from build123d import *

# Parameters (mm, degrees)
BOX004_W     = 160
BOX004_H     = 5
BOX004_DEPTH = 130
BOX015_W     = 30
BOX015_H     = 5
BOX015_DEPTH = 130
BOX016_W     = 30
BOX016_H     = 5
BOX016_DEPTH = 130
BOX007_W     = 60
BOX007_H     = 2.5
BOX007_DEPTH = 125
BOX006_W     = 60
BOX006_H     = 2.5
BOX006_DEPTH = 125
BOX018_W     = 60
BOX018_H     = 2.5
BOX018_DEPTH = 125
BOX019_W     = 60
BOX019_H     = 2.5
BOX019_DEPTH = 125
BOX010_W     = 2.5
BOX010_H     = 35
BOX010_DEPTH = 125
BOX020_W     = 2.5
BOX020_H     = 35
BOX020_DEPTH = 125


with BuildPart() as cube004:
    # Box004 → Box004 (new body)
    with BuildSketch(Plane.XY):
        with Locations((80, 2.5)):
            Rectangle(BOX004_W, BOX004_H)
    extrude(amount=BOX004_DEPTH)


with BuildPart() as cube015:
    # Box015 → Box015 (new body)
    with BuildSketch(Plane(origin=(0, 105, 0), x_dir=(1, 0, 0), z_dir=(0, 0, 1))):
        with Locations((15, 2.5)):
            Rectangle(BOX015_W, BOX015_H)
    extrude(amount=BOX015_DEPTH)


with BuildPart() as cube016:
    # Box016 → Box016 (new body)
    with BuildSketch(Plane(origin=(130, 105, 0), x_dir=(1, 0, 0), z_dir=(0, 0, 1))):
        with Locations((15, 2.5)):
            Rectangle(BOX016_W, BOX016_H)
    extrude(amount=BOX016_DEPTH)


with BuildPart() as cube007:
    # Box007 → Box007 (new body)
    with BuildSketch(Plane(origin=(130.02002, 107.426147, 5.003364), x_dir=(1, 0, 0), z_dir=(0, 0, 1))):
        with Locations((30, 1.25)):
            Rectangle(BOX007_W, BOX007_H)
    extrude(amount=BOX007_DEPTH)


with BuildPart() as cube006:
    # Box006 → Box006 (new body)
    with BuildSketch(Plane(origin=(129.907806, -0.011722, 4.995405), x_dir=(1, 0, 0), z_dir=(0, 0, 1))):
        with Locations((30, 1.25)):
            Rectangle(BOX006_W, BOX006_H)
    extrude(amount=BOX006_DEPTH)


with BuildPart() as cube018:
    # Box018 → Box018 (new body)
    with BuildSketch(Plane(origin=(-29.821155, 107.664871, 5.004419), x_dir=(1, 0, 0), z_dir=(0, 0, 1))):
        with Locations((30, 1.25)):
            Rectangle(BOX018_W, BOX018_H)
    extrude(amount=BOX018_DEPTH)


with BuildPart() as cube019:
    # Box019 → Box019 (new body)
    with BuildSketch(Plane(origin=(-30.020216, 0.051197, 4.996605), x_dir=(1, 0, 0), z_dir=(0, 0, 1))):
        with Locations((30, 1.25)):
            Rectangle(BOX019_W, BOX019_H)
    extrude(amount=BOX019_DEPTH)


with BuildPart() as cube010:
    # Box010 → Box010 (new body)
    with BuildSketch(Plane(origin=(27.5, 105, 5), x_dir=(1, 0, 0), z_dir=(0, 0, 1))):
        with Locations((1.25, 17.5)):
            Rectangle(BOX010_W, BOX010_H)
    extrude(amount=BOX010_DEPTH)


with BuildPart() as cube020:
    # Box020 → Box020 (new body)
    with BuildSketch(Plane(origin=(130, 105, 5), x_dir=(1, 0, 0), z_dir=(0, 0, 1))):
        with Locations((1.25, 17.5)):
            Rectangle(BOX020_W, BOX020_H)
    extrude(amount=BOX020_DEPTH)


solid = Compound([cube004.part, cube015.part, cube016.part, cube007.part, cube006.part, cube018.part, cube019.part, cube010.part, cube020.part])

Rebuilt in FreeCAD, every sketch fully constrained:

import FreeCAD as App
import Part
import Sketcher

V = App.Vector


def add_polygon(sketch, points):
    """Adds a closed chain of lines whose ends are joined by coincident constraints."""
    first, n = sketch.GeometryCount, len(points)
    for a, b in zip(points, points[1:] + points[:1]):
        sketch.addGeometry(Part.LineSegment(App.Vector(*a, 0), App.Vector(*b, 0)), False)
    for i in range(n):
        sketch.addConstraint(Sketcher.Constraint("Coincident", first + i, 2, first + (i + 1) % n, 1))

doc = App.newDocument("Part")
body = doc.addObject("PartDesign::Body", "Body")

sketch1 = body.newObject("Sketcher::SketchObject", "Sketch")
sketch1.AttachmentSupport = (doc.getObject("XY_Plane"), [""])
sketch1.MapMode = "FlatFace"
add_polygon(sketch1, [(0, 5), (0, 0), (160, 0), (160, 5)])
sketch1.addConstraint(Sketcher.Constraint("Vertical", 0))
sketch1.addConstraint(Sketcher.Constraint("Horizontal", 1))
sketch1.addConstraint(Sketcher.Constraint("Vertical", 2))
sketch1.addConstraint(Sketcher.Constraint("Horizontal", 3))
sketch1.addConstraint(Sketcher.Constraint("Coincident", 0, 2, -1, 1))
sketch1.addConstraint(Sketcher.Constraint("DistanceX", 1, 1, 1, 2, 160.0))
sketch1.addConstraint(Sketcher.Constraint("DistanceY", 0, 2, 0, 1, 5.0))
pad1 = body.newObject("PartDesign::Pad", "Pad")
pad1.Profile = sketch1
pad1.Length = 130
body2 = doc.addObject("PartDesign::Body", "Body001")

sketch2 = body2.newObject("Sketcher::SketchObject", "Sketch001")
sketch2.AttachmentSupport = (doc.getObject("XY_Plane001"), [""])
sketch2.MapMode = "FlatFace"
add_polygon(sketch2, [(0, 110), (0, 105), (30, 105), (30, 110)])
sketch2.addConstraint(Sketcher.Constraint("Vertical", 0))
sketch2.addConstraint(Sketcher.Constraint("Horizontal", 1))
sketch2.addConstraint(Sketcher.Constraint("Vertical", 2))
sketch2.addConstraint(Sketcher.Constraint("Horizontal", 3))
sketch2.addConstraint(Sketcher.Constraint("PointOnObject", 0, 2, -2))
sketch2.addConstraint(Sketcher.Constraint("DistanceX", 1, 1, 1, 2, 30.0))
sketch2.addConstraint(Sketcher.Constraint("DistanceY", 0, 2, 0, 1, 5.0))
sketch2.addConstraint(Sketcher.Constraint("DistanceY", -1, 1, 0, 2, 105.0))
pad2 = body2.newObject("PartDesign::Pad", "Pad001")
pad2.Profile = sketch2
pad2.Length = 130
body3 = doc.addObject("PartDesign::Body", "Body002")

sketch3 = body3.newObject("Sketcher::SketchObject", "Sketch002")
sketch3.AttachmentSupport = (doc.getObject("XY_Plane002"), [""])
sketch3.MapMode = "FlatFace"
add_polygon(sketch3, [(130, 110), (130, 105), (160, 105), (160, 110)])
sketch3.addConstraint(Sketcher.Constraint("Vertical", 0))
sketch3.addConstraint(Sketcher.Constraint("Horizontal", 1))
sketch3.addConstraint(Sketcher.Constraint("Vertical", 2))
sketch3.addConstraint(Sketcher.Constraint("Horizontal", 3))
sketch3.addConstraint(Sketcher.Constraint("DistanceX", 1, 1, 1, 2, 30.0))
sketch3.addConstraint(Sketcher.Constraint("DistanceY", 0, 2, 0, 1, 5.0))
sketch3.addConstraint(Sketcher.Constraint("DistanceX", -1, 1, 0, 2, 130.0))
sketch3.addConstraint(Sketcher.Constraint("DistanceY", -1, 1, 0, 2, 105.0))
pad3 = body3.newObject("PartDesign::Pad", "Pad002")
pad3.Profile = sketch3
pad3.Length = 130
body4 = doc.addObject("PartDesign::Body", "Body003")

sketch4 = body4.newObject("Sketcher::SketchObject", "Sketch003")
sketch4.AttachmentSupport = (doc.getObject("XY_Plane003"), [""])
sketch4.MapMode = "FlatFace"
sketch4.AttachmentOffset = App.Placement(V(0, 0, 5.003364), App.Rotation())
add_polygon(sketch4, [(130, 109.9), (130, 107.4), (190, 107.4), (190, 109.9)])
sketch4.addConstraint(Sketcher.Constraint("Vertical", 0))
sketch4.addConstraint(Sketcher.Constraint("Horizontal", 1))
sketch4.addConstraint(Sketcher.Constraint("Vertical", 2))
sketch4.addConstraint(Sketcher.Constraint("Horizontal", 3))
sketch4.addConstraint(Sketcher.Constraint("DistanceX", 1, 1, 1, 2, 60.0))
sketch4.addConstraint(Sketcher.Constraint("DistanceY", 0, 2, 0, 1, 2.5))
sketch4.addConstraint(Sketcher.Constraint("DistanceX", -1, 1, 0, 2, 130.02002))
sketch4.addConstraint(Sketcher.Constraint("DistanceY", -1, 1, 0, 2, 107.426147))
pad4 = body4.newObject("PartDesign::Pad", "Pad003")
pad4.Profile = sketch4
pad4.Length = 125
body5 = doc.addObject("PartDesign::Body", "Body004")

sketch5 = body5.newObject("Sketcher::SketchObject", "Sketch004")
sketch5.AttachmentSupport = (doc.getObject("XY_Plane004"), [""])
sketch5.MapMode = "FlatFace"
sketch5.AttachmentOffset = App.Placement(V(0, 0, 4.995405), App.Rotation())
add_polygon(sketch5, [(129.9, 2.5), (129.9, 0), (189.9, 0), (189.9, 2.5)])
sketch5.addConstraint(Sketcher.Constraint("Vertical", 0))
sketch5.addConstraint(Sketcher.Constraint("Horizontal", 1))
sketch5.addConstraint(Sketcher.Constraint("Vertical", 2))
sketch5.addConstraint(Sketcher.Constraint("Horizontal", 3))
sketch5.addConstraint(Sketcher.Constraint("DistanceX", 1, 1, 1, 2, 60.0))
sketch5.addConstraint(Sketcher.Constraint("DistanceY", 0, 2, 0, 1, 2.5))
sketch5.addConstraint(Sketcher.Constraint("DistanceY", -1, 1, 2, 2, 2.488278))
sketch5.addConstraint(Sketcher.Constraint("DistanceX", -1, 1, 0, 2, 129.907806))
pad5 = body5.newObject("PartDesign::Pad", "Pad004")
pad5.Profile = sketch5
pad5.Length = 125
body6 = doc.addObject("PartDesign::Body", "Body005")

sketch6 = body6.newObject("Sketcher::SketchObject", "Sketch005")
sketch6.AttachmentSupport = (doc.getObject("XY_Plane005"), [""])
sketch6.MapMode = "FlatFace"
sketch6.AttachmentOffset = App.Placement(V(0, 0, 5.004419), App.Rotation())
add_polygon(sketch6, [(-29.8, 110.2), (-29.8, 107.7), (30.2, 107.7), (30.2, 110.2)])
sketch6.addConstraint(Sketcher.Constraint("Vertical", 0))
sketch6.addConstraint(Sketcher.Constraint("Horizontal", 1))
sketch6.addConstraint(Sketcher.Constraint("Vertical", 2))
sketch6.addConstraint(Sketcher.Constraint("Horizontal", 3))
sketch6.addConstraint(Sketcher.Constraint("DistanceX", 1, 1, 1, 2, 60.0))
sketch6.addConstraint(Sketcher.Constraint("DistanceY", 0, 2, 0, 1, 2.5))
sketch6.addConstraint(Sketcher.Constraint("DistanceY", -1, 1, 0, 2, 107.664871))
sketch6.addConstraint(Sketcher.Constraint("DistanceX", 0, 2, -1, 1, 29.821155))
pad6 = body6.newObject("PartDesign::Pad", "Pad005")
pad6.Profile = sketch6
pad6.Length = 125
body7 = doc.addObject("PartDesign::Body", "Body006")

sketch7 = body7.newObject("Sketcher::SketchObject", "Sketch006")
sketch7.AttachmentSupport = (doc.getObject("XY_Plane006"), [""])
sketch7.MapMode = "FlatFace"
sketch7.AttachmentOffset = App.Placement(V(0, 0, 4.996605), App.Rotation())
add_polygon(sketch7, [(-30, 2.6), (-30, 0.1), (30, 0.1), (30, 2.6)])
sketch7.addConstraint(Sketcher.Constraint("Vertical", 0))
sketch7.addConstraint(Sketcher.Constraint("Horizontal", 1))
sketch7.addConstraint(Sketcher.Constraint("Vertical", 2))
sketch7.addConstraint(Sketcher.Constraint("Horizontal", 3))
sketch7.addConstraint(Sketcher.Constraint("DistanceX", 1, 1, 1, 2, 60.0))
sketch7.addConstraint(Sketcher.Constraint("DistanceY", 0, 2, 0, 1, 2.5))
sketch7.addConstraint(Sketcher.Constraint("DistanceX", 0, 2, -1, 1, 30.020216))
sketch7.addConstraint(Sketcher.Constraint("DistanceY", -1, 1, 0, 2, 0.051197))
pad7 = body7.newObject("PartDesign::Pad", "Pad006")
pad7.Profile = sketch7
pad7.Length = 125
body8 = doc.addObject("PartDesign::Body", "Body007")

sketch8 = body8.newObject("Sketcher::SketchObject", "Sketch007")
sketch8.AttachmentSupport = (doc.getObject("XY_Plane007"), [""])
sketch8.MapMode = "FlatFace"
sketch8.AttachmentOffset = App.Placement(V(0, 0, 5), App.Rotation())
add_polygon(sketch8, [(27.5, 140), (27.5, 105), (30, 105), (30, 140)])
sketch8.addConstraint(Sketcher.Constraint("Vertical", 0))
sketch8.addConstraint(Sketcher.Constraint("Horizontal", 1))
sketch8.addConstraint(Sketcher.Constraint("Vertical", 2))
sketch8.addConstraint(Sketcher.Constraint("Horizontal", 3))
sketch8.addConstraint(Sketcher.Constraint("DistanceY", 0, 2, 0, 1, 35.0))
sketch8.addConstraint(Sketcher.Constraint("DistanceX", 1, 1, 1, 2, 2.5))
sketch8.addConstraint(Sketcher.Constraint("DistanceY", -1, 1, 0, 2, 105.0))
sketch8.addConstraint(Sketcher.Constraint("DistanceX", -1, 1, 1, 2, 30.0))
pad8 = body8.newObject("PartDesign::Pad", "Pad007")
pad8.Profile = sketch8
pad8.Length = 125
body9 = doc.addObject("PartDesign::Body", "Body008")

sketch9 = body9.newObject("Sketcher::SketchObject", "Sketch008")
sketch9.AttachmentSupport = (doc.getObject("XY_Plane008"), [""])
sketch9.MapMode = "FlatFace"
sketch9.AttachmentOffset = App.Placement(V(0, 0, 5), App.Rotation())
add_polygon(sketch9, [(130, 140), (130, 105), (132.5, 105), (132.5, 140)])
sketch9.addConstraint(Sketcher.Constraint("Vertical", 0))
sketch9.addConstraint(Sketcher.Constraint("Horizontal", 1))
sketch9.addConstraint(Sketcher.Constraint("Vertical", 2))
sketch9.addConstraint(Sketcher.Constraint("Horizontal", 3))
sketch9.addConstraint(Sketcher.Constraint("DistanceY", 0, 2, 0, 1, 35.0))
sketch9.addConstraint(Sketcher.Constraint("DistanceX", 1, 1, 1, 2, 2.5))
sketch9.addConstraint(Sketcher.Constraint("DistanceX", -1, 1, 0, 2, 130.0))
sketch9.addConstraint(Sketcher.Constraint("DistanceY", -1, 1, 0, 2, 105.0))
pad9 = body9.newObject("PartDesign::Pad", "Pad008")
pad9.Profile = sketch9
pad9.Length = 125

doc.recompute()
